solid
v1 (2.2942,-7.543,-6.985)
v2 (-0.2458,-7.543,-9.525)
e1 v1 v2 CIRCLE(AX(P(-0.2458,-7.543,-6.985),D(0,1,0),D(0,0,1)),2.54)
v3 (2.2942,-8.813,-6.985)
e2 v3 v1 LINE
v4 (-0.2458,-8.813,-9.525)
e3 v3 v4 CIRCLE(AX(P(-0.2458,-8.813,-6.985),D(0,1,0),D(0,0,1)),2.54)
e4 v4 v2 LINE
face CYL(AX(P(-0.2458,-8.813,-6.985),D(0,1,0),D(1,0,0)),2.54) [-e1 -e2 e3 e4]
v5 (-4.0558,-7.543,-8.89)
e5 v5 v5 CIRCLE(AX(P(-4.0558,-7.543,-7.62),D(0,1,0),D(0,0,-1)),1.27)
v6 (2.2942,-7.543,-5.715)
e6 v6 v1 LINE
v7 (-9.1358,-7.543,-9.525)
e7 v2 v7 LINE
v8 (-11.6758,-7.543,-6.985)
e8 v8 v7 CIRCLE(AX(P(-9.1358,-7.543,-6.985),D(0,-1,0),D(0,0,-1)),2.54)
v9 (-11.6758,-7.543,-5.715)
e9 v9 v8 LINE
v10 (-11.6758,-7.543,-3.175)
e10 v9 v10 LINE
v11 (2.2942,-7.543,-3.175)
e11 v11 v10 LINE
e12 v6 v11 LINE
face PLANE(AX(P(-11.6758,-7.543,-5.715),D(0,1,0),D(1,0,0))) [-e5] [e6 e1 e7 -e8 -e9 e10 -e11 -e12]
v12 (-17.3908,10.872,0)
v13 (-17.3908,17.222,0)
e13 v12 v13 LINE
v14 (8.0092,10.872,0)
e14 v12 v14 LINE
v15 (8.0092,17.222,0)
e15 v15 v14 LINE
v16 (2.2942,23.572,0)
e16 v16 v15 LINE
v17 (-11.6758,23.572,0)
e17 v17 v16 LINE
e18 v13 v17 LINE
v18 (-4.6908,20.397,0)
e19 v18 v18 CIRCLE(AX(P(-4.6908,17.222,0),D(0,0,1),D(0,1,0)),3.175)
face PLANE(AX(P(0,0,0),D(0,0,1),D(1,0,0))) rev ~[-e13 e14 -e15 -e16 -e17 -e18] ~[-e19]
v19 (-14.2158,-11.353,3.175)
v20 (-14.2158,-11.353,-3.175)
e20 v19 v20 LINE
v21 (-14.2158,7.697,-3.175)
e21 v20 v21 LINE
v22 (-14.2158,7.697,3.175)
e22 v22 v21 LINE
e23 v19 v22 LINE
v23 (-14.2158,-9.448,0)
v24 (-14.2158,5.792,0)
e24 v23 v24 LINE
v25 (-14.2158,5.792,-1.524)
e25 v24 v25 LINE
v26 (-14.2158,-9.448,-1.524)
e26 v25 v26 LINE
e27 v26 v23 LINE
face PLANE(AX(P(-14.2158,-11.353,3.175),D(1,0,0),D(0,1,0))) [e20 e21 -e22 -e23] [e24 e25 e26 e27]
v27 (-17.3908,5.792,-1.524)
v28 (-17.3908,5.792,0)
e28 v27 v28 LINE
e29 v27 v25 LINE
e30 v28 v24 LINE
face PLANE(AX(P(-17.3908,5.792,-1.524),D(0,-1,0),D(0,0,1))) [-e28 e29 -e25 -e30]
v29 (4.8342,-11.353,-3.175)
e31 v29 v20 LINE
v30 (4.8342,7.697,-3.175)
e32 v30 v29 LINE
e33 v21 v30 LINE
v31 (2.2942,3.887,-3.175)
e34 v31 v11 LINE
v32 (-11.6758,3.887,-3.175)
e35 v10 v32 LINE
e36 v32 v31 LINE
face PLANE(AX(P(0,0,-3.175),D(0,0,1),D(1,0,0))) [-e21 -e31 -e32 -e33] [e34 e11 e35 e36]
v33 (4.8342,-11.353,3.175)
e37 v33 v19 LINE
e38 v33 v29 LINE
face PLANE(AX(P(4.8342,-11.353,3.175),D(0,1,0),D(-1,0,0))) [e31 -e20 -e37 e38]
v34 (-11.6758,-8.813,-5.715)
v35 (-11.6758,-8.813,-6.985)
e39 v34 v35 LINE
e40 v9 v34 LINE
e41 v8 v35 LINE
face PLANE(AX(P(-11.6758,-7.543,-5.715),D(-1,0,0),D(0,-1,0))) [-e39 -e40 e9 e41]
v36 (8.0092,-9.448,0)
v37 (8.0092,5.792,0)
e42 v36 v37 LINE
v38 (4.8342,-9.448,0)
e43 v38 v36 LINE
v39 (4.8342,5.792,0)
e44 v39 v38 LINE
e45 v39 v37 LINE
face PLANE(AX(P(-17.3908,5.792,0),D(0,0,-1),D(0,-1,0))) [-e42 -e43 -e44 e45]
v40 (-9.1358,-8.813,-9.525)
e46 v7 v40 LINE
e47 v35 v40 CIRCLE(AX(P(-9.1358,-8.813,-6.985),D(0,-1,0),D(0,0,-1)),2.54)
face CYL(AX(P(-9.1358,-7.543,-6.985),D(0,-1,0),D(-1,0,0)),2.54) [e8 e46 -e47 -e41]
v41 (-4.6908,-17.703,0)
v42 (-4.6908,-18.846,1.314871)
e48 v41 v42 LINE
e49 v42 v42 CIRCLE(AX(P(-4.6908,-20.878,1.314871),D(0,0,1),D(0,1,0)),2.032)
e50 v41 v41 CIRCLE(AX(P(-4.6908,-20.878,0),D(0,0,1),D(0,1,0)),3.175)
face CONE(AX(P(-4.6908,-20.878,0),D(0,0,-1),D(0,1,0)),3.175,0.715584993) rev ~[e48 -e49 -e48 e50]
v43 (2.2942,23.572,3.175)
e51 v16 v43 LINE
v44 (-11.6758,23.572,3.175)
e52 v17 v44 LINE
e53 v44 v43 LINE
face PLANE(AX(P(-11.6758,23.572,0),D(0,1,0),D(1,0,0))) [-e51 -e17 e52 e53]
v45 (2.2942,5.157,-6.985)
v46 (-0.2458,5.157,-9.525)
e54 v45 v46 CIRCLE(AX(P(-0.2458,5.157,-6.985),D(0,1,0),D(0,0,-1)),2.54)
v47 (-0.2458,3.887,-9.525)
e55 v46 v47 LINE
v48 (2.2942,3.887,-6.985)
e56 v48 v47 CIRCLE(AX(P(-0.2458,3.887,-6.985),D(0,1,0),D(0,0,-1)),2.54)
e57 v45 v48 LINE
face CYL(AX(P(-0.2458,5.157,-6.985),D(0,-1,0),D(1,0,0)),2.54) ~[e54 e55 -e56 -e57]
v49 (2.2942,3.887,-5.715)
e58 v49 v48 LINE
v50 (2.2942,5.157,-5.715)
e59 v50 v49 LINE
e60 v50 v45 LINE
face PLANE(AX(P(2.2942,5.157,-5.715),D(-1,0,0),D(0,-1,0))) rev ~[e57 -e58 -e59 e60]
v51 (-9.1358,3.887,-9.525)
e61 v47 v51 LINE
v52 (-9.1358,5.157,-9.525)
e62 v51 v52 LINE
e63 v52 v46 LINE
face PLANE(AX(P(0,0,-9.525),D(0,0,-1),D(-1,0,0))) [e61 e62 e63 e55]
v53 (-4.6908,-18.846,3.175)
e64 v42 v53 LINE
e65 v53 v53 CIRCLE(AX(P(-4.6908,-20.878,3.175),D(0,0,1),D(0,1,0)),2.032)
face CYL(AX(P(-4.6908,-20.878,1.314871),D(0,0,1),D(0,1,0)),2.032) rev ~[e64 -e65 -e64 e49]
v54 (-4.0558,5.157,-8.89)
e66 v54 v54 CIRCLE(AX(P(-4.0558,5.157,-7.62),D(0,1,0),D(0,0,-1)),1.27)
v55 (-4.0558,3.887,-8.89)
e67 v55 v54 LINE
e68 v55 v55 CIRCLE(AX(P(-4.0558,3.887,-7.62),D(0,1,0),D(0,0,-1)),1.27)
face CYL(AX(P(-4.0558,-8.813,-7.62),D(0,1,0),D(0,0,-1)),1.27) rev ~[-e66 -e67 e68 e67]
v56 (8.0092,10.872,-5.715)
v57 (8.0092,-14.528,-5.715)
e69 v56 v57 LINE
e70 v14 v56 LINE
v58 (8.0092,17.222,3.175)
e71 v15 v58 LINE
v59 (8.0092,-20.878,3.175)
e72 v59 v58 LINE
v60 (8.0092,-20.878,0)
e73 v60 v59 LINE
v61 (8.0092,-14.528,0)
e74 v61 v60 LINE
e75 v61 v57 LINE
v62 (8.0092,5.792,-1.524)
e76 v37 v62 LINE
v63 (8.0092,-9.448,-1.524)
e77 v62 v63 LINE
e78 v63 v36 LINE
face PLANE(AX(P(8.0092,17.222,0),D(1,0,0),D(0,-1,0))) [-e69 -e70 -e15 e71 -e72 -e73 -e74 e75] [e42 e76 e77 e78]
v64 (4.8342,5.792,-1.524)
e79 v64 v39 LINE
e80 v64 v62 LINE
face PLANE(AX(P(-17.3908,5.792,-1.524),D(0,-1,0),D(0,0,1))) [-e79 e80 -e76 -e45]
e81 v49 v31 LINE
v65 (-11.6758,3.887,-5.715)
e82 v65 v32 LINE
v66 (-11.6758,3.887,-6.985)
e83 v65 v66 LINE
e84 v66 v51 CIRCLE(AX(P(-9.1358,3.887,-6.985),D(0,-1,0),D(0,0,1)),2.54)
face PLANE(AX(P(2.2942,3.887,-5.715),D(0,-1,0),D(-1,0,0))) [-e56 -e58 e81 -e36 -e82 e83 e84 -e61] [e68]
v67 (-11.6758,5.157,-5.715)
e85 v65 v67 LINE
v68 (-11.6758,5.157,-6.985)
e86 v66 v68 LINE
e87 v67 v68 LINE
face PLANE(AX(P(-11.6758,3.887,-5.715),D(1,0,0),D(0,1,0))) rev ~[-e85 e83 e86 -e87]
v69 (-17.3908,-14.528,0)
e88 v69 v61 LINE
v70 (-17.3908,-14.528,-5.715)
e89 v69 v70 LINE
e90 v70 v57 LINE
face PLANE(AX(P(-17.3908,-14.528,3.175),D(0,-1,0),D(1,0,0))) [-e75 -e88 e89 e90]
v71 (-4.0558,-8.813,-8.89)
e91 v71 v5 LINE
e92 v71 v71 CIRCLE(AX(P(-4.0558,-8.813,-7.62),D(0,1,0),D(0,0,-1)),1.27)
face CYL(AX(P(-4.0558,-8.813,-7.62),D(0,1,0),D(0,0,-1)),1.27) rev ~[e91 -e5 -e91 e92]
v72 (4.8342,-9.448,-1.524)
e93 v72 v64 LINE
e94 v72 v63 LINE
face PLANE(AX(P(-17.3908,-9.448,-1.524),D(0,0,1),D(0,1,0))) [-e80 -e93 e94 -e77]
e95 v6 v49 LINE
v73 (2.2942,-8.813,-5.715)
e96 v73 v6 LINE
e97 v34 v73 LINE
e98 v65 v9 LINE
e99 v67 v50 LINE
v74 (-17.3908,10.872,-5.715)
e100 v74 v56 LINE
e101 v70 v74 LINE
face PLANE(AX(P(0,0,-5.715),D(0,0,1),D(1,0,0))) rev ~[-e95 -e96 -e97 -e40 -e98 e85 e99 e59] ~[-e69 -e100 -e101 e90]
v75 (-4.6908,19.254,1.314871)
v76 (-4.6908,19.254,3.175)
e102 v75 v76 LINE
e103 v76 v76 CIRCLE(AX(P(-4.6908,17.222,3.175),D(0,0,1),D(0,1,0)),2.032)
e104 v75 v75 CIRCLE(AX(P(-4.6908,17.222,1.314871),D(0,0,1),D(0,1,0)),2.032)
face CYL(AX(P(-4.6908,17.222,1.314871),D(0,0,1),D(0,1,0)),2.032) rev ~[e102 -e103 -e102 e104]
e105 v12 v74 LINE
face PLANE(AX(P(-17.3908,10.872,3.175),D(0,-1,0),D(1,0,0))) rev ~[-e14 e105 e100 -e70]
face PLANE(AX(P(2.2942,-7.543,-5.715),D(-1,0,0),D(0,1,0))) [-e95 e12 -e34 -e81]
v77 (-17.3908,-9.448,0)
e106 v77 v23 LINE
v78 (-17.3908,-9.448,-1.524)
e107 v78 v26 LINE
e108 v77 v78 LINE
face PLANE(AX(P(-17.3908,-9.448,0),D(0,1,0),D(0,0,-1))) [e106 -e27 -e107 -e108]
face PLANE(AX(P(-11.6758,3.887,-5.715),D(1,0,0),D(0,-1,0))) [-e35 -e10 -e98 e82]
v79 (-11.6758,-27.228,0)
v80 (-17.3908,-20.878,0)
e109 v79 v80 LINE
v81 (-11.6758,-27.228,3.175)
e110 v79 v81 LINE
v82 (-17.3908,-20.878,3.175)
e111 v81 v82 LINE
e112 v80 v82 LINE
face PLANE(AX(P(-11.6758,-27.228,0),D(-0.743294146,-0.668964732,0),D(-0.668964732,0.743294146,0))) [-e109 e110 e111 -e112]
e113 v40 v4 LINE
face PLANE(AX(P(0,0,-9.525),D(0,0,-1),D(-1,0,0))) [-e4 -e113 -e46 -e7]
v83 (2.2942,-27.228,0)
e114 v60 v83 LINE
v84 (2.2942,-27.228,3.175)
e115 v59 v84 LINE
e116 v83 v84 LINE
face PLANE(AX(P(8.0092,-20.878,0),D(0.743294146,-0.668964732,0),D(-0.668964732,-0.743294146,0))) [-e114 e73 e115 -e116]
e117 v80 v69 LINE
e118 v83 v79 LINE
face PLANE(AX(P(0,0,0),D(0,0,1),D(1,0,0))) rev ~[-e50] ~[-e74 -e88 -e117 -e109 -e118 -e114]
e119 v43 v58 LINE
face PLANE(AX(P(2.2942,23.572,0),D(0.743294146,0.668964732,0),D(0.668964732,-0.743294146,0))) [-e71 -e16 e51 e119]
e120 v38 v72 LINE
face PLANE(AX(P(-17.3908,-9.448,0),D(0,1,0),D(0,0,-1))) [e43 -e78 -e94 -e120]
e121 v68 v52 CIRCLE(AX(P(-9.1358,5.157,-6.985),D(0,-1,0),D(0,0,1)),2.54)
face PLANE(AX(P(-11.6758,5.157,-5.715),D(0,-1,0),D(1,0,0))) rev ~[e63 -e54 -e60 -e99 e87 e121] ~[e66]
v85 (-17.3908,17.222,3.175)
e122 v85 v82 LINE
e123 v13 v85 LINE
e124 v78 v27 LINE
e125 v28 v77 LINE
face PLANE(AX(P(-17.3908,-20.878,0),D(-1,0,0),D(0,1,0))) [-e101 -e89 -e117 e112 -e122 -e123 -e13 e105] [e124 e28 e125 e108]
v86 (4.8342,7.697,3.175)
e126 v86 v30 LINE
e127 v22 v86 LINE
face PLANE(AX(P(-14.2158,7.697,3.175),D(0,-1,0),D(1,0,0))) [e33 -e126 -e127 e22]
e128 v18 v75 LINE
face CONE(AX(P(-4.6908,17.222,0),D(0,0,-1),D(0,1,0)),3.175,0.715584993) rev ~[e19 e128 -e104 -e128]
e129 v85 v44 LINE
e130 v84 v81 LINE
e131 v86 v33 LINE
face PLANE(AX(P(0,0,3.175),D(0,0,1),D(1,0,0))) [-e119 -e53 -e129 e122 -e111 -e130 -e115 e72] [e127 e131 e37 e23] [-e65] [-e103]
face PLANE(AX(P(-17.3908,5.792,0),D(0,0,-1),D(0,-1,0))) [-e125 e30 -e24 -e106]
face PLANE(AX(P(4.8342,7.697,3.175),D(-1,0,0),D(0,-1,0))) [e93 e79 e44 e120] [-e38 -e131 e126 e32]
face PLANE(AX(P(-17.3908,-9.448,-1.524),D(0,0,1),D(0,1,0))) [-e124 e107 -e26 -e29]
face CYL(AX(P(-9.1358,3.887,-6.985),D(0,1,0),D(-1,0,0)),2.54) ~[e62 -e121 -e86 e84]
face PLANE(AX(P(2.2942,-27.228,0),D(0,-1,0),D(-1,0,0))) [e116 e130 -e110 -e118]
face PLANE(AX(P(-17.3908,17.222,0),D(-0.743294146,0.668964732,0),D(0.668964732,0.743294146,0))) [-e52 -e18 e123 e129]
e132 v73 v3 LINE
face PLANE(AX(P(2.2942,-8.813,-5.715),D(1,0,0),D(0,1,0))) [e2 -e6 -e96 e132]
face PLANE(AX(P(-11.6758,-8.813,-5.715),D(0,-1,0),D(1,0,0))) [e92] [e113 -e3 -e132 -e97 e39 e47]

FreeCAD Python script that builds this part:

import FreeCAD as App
import Part
import Sketcher
from FreeCAD import Vector
Q = App.Units.Quantity


def edges_at(feature, points):
    """Names of the edges that pass closest to the given points."""
    edges = feature.Shape.Edges
    near = lambda p: min(range(len(edges)), key=lambda i: edges[i].distToShape(Part.Vertex(*p))[0])
    return sorted({f"Edge{near(p) + 1}" for p in points})


def add_polygon(sketch, points):
    """Adds a closed chain of lines whose ends are joined by coincident constraints."""
    first, n = sketch.GeometryCount, len(points)
    for a, b in zip(points, points[1:] + points[:1]):
        sketch.addGeometry(Part.LineSegment(App.Vector(*a, 0), App.Vector(*b, 0)), False)
    for i in range(n):
        sketch.addConstraint(Sketcher.Constraint("Coincident", first + i, 2, first + (i + 1) % n, 1))

doc = App.newDocument("Part")
params = doc.addObject("Spreadsheet::Sheet", "Params")
for row, (alias, value) in enumerate([
    ("pad1_length", "0.125 in"),
    ("sketch2_width", "1 in"),
    ("pad2_length", "0.35 in"),
    ("sketch3_height", "0.45 in"),
    ("sketch3_width", "0.55 in"),
    ("sketch4_height", "0.05 in"),
    ("sketch4_width", "0.55 in"),
    ("pad3_length", "0.15 in"),
    ("sketch5_width", "0.75 in"),
    ("sketch5_width2", "0.55 in"),
    ("sketch5_height", "0.45 in"),
    ("pocket2_length", "0.25 in"),
    ("sketch6_width", "0.6 in"),
    ("sketch6_height", "0.06 in"),
    ("fillet_radius", "0.1 in"),
    ("sketch7_diameter", "0.1 in"),
    ("hole_diameter", "0.1 in"),
    ("sketch8_diameter", "0.16 in"),
    ("hole2_diameter", "0.16 in"),
    ("hole2_csink_diameter", "0.25 in"),
], start=1):
    params.set(f"A{row}", alias)
    params.set(f"B{row}", "=" + value)
    params.setAlias(f"B{row}", alias)

body = doc.addObject("PartDesign::Body", "Body")

# Sketch on XY plane
sketch1 = body.newObject("Sketcher::SketchObject", "Sketch")
sketch1.AttachmentSupport = (doc.getObject("XY_Plane"), [""])
sketch1.MapMode = "FlatFace"
add_polygon(sketch1, [(2, 24), (-12, 24), (-17, 17), (-17, -21), (-12, -27), (2, -27), (8, -21), (8, 17)])  # lines 0-7
sketch1.addConstraint(Sketcher.Constraint("Horizontal", 0))
sketch1.addConstraint(Sketcher.Constraint("Vertical", 2))
sketch1.addConstraint(Sketcher.Constraint("Horizontal", 4))
sketch1.addConstraint(Sketcher.Constraint("Vertical", 6))
sketch1.addConstraint(Sketcher.Constraint("Parallel", 1, 5))
sketch1.addConstraint(Sketcher.Constraint("Parallel", 3, 7))
sketch1.addConstraint(Sketcher.Constraint("Horizontal", 2, 2, 5, 2))
sketch1.addConstraint(Sketcher.Constraint("Horizontal", 1, 2, 6, 2))
sketch1.addConstraint(Sketcher.Constraint("Vertical", 0, 2, 3, 2))
sketch1.addConstraint(Sketcher.Constraint("Vertical", 4, 2, 7, 2))
sketch1.addConstraint(Sketcher.Constraint("DistanceY", 3, 2, 0, 2, Q("2 in")))
sketch1.addConstraint(Sketcher.Constraint("DistanceX", 2, 2, 5, 2, Q("1 in")))
sketch1.addConstraint(Sketcher.Constraint("DistanceY", 1, 2, 0, 2, Q("0.25 in")))
sketch1.addConstraint(Sketcher.Constraint("DistanceX", 1, 2, 0, 2, Q("0.225 in")))
sketch1.addConstraint(Sketcher.Constraint("DistanceX", 0, 2, -1, 1, 11.6758))
sketch1.addConstraint(Sketcher.Constraint("DistanceY", -1, 1, 0, 2, 23.572))
pad1 = body.newObject("PartDesign::Pad", "Pad")
pad1.Profile = sketch1
pad1.setExpression("Length", "Params.pad1_length")

# Sketch on XY plane
sketch2 = body.newObject("Sketcher::SketchObject", "Sketch001")
sketch2.AttachmentSupport = (doc.getObject("XY_Plane"), [""])
sketch2.MapMode = "FlatFace"
sketch2.AttachmentOffset = App.Placement(Vector(0, 0, 0.125 * 25.4), App.Rotation())
add_polygon(sketch2, [(-17, 11), (-17, -15), (8, -15), (8, 11)])  # lines 0-3
sketch2.addConstraint(Sketcher.Constraint("Vertical", 0))
sketch2.addConstraint(Sketcher.Constraint("Horizontal", 1))
sketch2.addConstraint(Sketcher.Constraint("Vertical", 2))
sketch2.addConstraint(Sketcher.Constraint("Horizontal", 3))
sketch2.addConstraint(Sketcher.Constraint("Equal", 3, 0))
sketch2.addConstraint(Sketcher.Constraint("DistanceX", 1, 1, 1, 2, Q("1 in")))
sketch2.addConstraint(Sketcher.Constraint("DistanceX", 0, 2, -1, 1, 17.3908))
sketch2.addConstraint(Sketcher.Constraint("DistanceY", 0, 2, -1, 1, 14.528))
sketch2.setExpression("Constraints[9]", "Params.sketch2_width")
pad2 = body.newObject("PartDesign::Pad", "Pad001")
pad2.Profile = sketch2
pad2.setExpression("Length", "Params.pad2_length")
pad2.Reversed = True

# Sketch on XY plane
sketch3 = body.newObject("Sketcher::SketchObject", "Sketch002")
sketch3.AttachmentSupport = (doc.getObject("XY_Plane"), [""])
sketch3.MapMode = "FlatFace"
sketch3.AttachmentOffset = App.Placement(Vector(0, 0, -0.225 * 25.4), App.Rotation())
add_polygon(sketch3, [(-12, 4), (2, 4), (2, -8), (-12, -8)])  # lines 0-3
sketch3.addConstraint(Sketcher.Constraint("Horizontal", 0))
sketch3.addConstraint(Sketcher.Constraint("Vertical", 1))
sketch3.addConstraint(Sketcher.Constraint("Horizontal", 2))
sketch3.addConstraint(Sketcher.Constraint("Vertical", 3))
sketch3.addConstraint(Sketcher.Constraint("DistanceY", 1, 2, 1, 1, Q("0.45 in")))
sketch3.addConstraint(Sketcher.Constraint("DistanceX", 0, 1, 0, 2, Q("0.55 in")))
sketch3.addConstraint(Sketcher.Constraint("DistanceX", -1, 1, 0, 2, 2.2942))
sketch3.addConstraint(Sketcher.Constraint("DistanceY", -1, 1, 0, 2, 3.887))
sketch3.setExpression("Constraints[8]", "Params.sketch3_height")
sketch3.setExpression("Constraints[9]", "Params.sketch3_width")
pocket1 = body.newObject("PartDesign::Pocket", "Pocket")
pocket1.Profile = sketch3
pocket1.Type = "ThroughAll"
pocket1.Reversed = True

# Sketch on XY plane
sketch4 = body.newObject("Sketcher::SketchObject", "Sketch003")
sketch4.AttachmentSupport = (doc.getObject("XY_Plane"), [""])
sketch4.MapMode = "FlatFace"
sketch4.AttachmentOffset = App.Placement(Vector(0, 0, -0.225 * 25.4), App.Rotation())
add_polygon(sketch4, [(-11.7, -8.8), (-11.7, -7.5), (2.3, -7.5), (2.3, -8.8)])  # lines 0-3
add_polygon(sketch4, [(2.3, 3.9), (-11.7, 3.9), (-11.7, 5.2), (2.3, 5.2)])  # lines 4-7
sketch4.addConstraint(Sketcher.Constraint("Vertical", 0))
sketch4.addConstraint(Sketcher.Constraint("Horizontal", 1))
sketch4.addConstraint(Sketcher.Constraint("Vertical", 2))
sketch4.addConstraint(Sketcher.Constraint("Horizontal", 3))
sketch4.addConstraint(Sketcher.Constraint("Horizontal", 4))
sketch4.addConstraint(Sketcher.Constraint("Vertical", 5))
sketch4.addConstraint(Sketcher.Constraint("Horizontal", 6))
sketch4.addConstraint(Sketcher.Constraint("Vertical", 7))
sketch4.addConstraint(Sketcher.Constraint("Vertical", 3, 2, 4, 2))
sketch4.addConstraint(Sketcher.Constraint("Vertical", 2, 2, 6, 2))
sketch4.addConstraint(Sketcher.Constraint("Equal", 2, 5))
sketch4.addConstraint(Sketcher.Constraint("DistanceY", 0, 1, 0, 2, Q("0.05 in")))
sketch4.addConstraint(Sketcher.Constraint("DistanceX", 1, 1, 1, 2, Q("0.55 in")))
sketch4.addConstraint(Sketcher.Constraint("DistanceY", 3, 2, 4, 2, Q("0.5 in")))
sketch4.addConstraint(Sketcher.Constraint("DistanceX", 0, 2, -1, 1, 11.6758))
sketch4.addConstraint(Sketcher.Constraint("DistanceY", 0, 2, -1, 1, 7.543))
sketch4.setExpression("Constraints[19]", "Params.sketch4_height")
sketch4.setExpression("Constraints[20]", "Params.sketch4_width")
pad3 = body.newObject("PartDesign::Pad", "Pad002")
pad3.Profile = sketch4
pad3.setExpression("Length", "Params.pad3_length")
pad3.Reversed = True

# Sketch on XY plane
sketch5 = body.newObject("Sketcher::SketchObject", "Sketch004")
sketch5.AttachmentSupport = (doc.getObject("XY_Plane"), [""])
sketch5.MapMode = "FlatFace"
sketch5.AttachmentOffset = App.Placement(Vector(0, 0, 0.125 * 25.4), App.Rotation())
add_polygon(sketch5, [(5, 8), (-14, 8), (-14, -11), (5, -11)])  # lines 0-3
add_polygon(sketch5, [(-12, 4), (2, 4), (2, -8), (-12, -8)])  # lines 4-7
sketch5.addConstraint(Sketcher.Constraint("Horizontal", 0))
sketch5.addConstraint(Sketcher.Constraint("Vertical", 1))
sketch5.addConstraint(Sketcher.Constraint("Horizontal", 2))
sketch5.addConstraint(Sketcher.Constraint("Vertical", 3))
sketch5.addConstraint(Sketcher.Constraint("Horizontal", 4))
sketch5.addConstraint(Sketcher.Constraint("Vertical", 5))
sketch5.addConstraint(Sketcher.Constraint("Horizontal", 6))
sketch5.addConstraint(Sketcher.Constraint("Vertical", 7))
sketch5.addConstraint(Sketcher.Constraint("Equal", 2, 1))
sketch5.addConstraint(Sketcher.Constraint("DistanceX", 0, 2, 0, 1, Q("0.75 in")))
sketch5.addConstraint(Sketcher.Constraint("DistanceX", 4, 1, 4, 2, Q("0.55 in")))
sketch5.addConstraint(Sketcher.Constraint("DistanceY", 5, 2, 5, 1, Q("0.45 in")))
sketch5.addConstraint(Sketcher.Constraint("DistanceX", 4, 2, 3, 2, Q("0.1 in")))
sketch5.addConstraint(Sketcher.Constraint("DistanceY", 2, 2, 4, 2, Q("0.6 in")))
sketch5.addConstraint(Sketcher.Constraint("DistanceX", 0, 2, -1, 1, 14.2158))
sketch5.addConstraint(Sketcher.Constraint("DistanceY", -1, 1, 0, 2, 7.697))
sketch5.setExpression("Constraints[17]", "Params.sketch5_width")
sketch5.setExpression("Constraints[18]", "Params.sketch5_width2")
sketch5.setExpression("Constraints[19]", "Params.sketch5_height")
pocket2 = body.newObject("PartDesign::Pocket", "Pocket001")
pocket2.Profile = sketch5
pocket2.setExpression("Length", "Params.pocket2_length")

# Sketch on YZ plane
sketch6 = body.newObject("Sketcher::SketchObject", "Sketch005")
sketch6.AttachmentSupport = (doc.getObject("YZ_Plane"), [""])
sketch6.MapMode = "FlatFace"
sketch6.AttachmentOffset = App.Placement(Vector(0, 0, -17.3908), App.Rotation())
add_polygon(sketch6, [(5.8, 0), (5.8, -1.5), (-9.4, -1.5), (-9.4, 0)])  # lines 0-3
sketch6.addConstraint(Sketcher.Constraint("Vertical", 0))
sketch6.addConstraint(Sketcher.Constraint("Horizontal", 1))
sketch6.addConstraint(Sketcher.Constraint("Vertical", 2))
sketch6.addConstraint(Sketcher.Constraint("Horizontal", 3))
sketch6.addConstraint(Sketcher.Constraint("PointOnObject", 2, 2, -1))
sketch6.addConstraint(Sketcher.Constraint("DistanceX", 1, 2, 1, 1, Q("0.6 in")))
sketch6.addConstraint(Sketcher.Constraint("DistanceY", 0, 2, 0, 1, Q("0.06 in")))
sketch6.addConstraint(Sketcher.Constraint("DistanceX", -1, 1, 0, 2, 5.792))
sketch6.setExpression("Constraints[9]", "Params.sketch6_width")
sketch6.setExpression("Constraints[10]", "Params.sketch6_height")
pocket3 = body.newObject("PartDesign::Pocket", "Pocket002")
pocket3.Profile = sketch6
pocket3.Type = "ThroughAll"
pocket3.Reversed = True
doc.recompute()

fillet = body.newObject("PartDesign::Fillet", "Fillet")
fillet.Base = (pocket3, edges_at(pocket3, [
    (2.294, -8.178, -9.525),
    (2.294, 4.522, -9.525),
    (-11.676, 4.522, -9.525),
    (-11.676, -8.178, -9.525),
]))
fillet.setExpression("Radius", "Params.fillet_radius")

# Sketch on XZ plane
sketch7 = body.newObject("Sketcher::SketchObject", "Sketch006")
sketch7.AttachmentSupport = (doc.getObject("XZ_Plane"), [""])
sketch7.MapMode = "FlatFace"
sketch7.AttachmentOffset = App.Placement(Vector(0, 0, 8.813), App.Rotation())
sketch7.addGeometry(Part.Circle(Vector(-4.1, -7.6, 0), Vector(0, 0, 1), 1.3), False)
sketch7.addConstraint(Sketcher.Constraint("Diameter", 0, Q("0.1 in")))
sketch7.addConstraint(Sketcher.Constraint("DistanceY", 0, 3, -1, 1, Q("0.3 in")))
sketch7.addConstraint(Sketcher.Constraint("DistanceX", 0, 3, -1, 1, 4.0558))
sketch7.setExpression("Constraints[0]", "Params.sketch7_diameter")
doc.recompute()
hole = body.newObject("PartDesign::Hole", "Hole")
hole.Profile = sketch7
hole.ThreadType = "None"
hole.setExpression("Diameter", "Params.hole_diameter")
hole.DepthType = "ThroughAll"

# Sketch on XY plane
sketch8 = body.newObject("Sketcher::SketchObject", "Sketch007")
sketch8.AttachmentSupport = (doc.getObject("XY_Plane"), [""])
sketch8.MapMode = "FlatFace"
sketch8.addGeometry(Part.Circle(Vector(-4.7, 17.2, 0), Vector(0, 0, 1), 2), False)
sketch8.addGeometry(Part.Circle(Vector(-4.7, -20.9, 0), Vector(0, 0, 1), 2), False)
sketch8.addConstraint(Sketcher.Constraint("Equal", 0, 1))
sketch8.addConstraint(Sketcher.Constraint("Vertical", 0, 3, 1, 3))
sketch8.addConstraint(Sketcher.Constraint("Diameter", 0, Q("0.16 in")))
sketch8.addConstraint(Sketcher.Constraint("DistanceY", 1, 3, 0, 3, Q("1.5 in")))
sketch8.addConstraint(Sketcher.Constraint("DistanceX", 0, 3, -1, 1, 4.6908))
sketch8.addConstraint(Sketcher.Constraint("DistanceY", -1, 1, 0, 3, 17.222))
sketch8.setExpression("Constraints[2]", "Params.sketch8_diameter")
doc.recompute()
hole2 = body.newObject("PartDesign::Hole", "Hole001")
hole2.Profile = sketch8
hole2.ThreadType = "None"
hole2.setExpression("Diameter", "Params.hole2_diameter")
hole2.DepthType = "ThroughAll"
hole2.HoleCutType = "Countersink"
hole2.setExpression("HoleCutDiameter", "Params.hole2_csink_diameter")
hole2.HoleCutCountersinkAngle = 82
hole2.Reversed = True

doc.recompute()
